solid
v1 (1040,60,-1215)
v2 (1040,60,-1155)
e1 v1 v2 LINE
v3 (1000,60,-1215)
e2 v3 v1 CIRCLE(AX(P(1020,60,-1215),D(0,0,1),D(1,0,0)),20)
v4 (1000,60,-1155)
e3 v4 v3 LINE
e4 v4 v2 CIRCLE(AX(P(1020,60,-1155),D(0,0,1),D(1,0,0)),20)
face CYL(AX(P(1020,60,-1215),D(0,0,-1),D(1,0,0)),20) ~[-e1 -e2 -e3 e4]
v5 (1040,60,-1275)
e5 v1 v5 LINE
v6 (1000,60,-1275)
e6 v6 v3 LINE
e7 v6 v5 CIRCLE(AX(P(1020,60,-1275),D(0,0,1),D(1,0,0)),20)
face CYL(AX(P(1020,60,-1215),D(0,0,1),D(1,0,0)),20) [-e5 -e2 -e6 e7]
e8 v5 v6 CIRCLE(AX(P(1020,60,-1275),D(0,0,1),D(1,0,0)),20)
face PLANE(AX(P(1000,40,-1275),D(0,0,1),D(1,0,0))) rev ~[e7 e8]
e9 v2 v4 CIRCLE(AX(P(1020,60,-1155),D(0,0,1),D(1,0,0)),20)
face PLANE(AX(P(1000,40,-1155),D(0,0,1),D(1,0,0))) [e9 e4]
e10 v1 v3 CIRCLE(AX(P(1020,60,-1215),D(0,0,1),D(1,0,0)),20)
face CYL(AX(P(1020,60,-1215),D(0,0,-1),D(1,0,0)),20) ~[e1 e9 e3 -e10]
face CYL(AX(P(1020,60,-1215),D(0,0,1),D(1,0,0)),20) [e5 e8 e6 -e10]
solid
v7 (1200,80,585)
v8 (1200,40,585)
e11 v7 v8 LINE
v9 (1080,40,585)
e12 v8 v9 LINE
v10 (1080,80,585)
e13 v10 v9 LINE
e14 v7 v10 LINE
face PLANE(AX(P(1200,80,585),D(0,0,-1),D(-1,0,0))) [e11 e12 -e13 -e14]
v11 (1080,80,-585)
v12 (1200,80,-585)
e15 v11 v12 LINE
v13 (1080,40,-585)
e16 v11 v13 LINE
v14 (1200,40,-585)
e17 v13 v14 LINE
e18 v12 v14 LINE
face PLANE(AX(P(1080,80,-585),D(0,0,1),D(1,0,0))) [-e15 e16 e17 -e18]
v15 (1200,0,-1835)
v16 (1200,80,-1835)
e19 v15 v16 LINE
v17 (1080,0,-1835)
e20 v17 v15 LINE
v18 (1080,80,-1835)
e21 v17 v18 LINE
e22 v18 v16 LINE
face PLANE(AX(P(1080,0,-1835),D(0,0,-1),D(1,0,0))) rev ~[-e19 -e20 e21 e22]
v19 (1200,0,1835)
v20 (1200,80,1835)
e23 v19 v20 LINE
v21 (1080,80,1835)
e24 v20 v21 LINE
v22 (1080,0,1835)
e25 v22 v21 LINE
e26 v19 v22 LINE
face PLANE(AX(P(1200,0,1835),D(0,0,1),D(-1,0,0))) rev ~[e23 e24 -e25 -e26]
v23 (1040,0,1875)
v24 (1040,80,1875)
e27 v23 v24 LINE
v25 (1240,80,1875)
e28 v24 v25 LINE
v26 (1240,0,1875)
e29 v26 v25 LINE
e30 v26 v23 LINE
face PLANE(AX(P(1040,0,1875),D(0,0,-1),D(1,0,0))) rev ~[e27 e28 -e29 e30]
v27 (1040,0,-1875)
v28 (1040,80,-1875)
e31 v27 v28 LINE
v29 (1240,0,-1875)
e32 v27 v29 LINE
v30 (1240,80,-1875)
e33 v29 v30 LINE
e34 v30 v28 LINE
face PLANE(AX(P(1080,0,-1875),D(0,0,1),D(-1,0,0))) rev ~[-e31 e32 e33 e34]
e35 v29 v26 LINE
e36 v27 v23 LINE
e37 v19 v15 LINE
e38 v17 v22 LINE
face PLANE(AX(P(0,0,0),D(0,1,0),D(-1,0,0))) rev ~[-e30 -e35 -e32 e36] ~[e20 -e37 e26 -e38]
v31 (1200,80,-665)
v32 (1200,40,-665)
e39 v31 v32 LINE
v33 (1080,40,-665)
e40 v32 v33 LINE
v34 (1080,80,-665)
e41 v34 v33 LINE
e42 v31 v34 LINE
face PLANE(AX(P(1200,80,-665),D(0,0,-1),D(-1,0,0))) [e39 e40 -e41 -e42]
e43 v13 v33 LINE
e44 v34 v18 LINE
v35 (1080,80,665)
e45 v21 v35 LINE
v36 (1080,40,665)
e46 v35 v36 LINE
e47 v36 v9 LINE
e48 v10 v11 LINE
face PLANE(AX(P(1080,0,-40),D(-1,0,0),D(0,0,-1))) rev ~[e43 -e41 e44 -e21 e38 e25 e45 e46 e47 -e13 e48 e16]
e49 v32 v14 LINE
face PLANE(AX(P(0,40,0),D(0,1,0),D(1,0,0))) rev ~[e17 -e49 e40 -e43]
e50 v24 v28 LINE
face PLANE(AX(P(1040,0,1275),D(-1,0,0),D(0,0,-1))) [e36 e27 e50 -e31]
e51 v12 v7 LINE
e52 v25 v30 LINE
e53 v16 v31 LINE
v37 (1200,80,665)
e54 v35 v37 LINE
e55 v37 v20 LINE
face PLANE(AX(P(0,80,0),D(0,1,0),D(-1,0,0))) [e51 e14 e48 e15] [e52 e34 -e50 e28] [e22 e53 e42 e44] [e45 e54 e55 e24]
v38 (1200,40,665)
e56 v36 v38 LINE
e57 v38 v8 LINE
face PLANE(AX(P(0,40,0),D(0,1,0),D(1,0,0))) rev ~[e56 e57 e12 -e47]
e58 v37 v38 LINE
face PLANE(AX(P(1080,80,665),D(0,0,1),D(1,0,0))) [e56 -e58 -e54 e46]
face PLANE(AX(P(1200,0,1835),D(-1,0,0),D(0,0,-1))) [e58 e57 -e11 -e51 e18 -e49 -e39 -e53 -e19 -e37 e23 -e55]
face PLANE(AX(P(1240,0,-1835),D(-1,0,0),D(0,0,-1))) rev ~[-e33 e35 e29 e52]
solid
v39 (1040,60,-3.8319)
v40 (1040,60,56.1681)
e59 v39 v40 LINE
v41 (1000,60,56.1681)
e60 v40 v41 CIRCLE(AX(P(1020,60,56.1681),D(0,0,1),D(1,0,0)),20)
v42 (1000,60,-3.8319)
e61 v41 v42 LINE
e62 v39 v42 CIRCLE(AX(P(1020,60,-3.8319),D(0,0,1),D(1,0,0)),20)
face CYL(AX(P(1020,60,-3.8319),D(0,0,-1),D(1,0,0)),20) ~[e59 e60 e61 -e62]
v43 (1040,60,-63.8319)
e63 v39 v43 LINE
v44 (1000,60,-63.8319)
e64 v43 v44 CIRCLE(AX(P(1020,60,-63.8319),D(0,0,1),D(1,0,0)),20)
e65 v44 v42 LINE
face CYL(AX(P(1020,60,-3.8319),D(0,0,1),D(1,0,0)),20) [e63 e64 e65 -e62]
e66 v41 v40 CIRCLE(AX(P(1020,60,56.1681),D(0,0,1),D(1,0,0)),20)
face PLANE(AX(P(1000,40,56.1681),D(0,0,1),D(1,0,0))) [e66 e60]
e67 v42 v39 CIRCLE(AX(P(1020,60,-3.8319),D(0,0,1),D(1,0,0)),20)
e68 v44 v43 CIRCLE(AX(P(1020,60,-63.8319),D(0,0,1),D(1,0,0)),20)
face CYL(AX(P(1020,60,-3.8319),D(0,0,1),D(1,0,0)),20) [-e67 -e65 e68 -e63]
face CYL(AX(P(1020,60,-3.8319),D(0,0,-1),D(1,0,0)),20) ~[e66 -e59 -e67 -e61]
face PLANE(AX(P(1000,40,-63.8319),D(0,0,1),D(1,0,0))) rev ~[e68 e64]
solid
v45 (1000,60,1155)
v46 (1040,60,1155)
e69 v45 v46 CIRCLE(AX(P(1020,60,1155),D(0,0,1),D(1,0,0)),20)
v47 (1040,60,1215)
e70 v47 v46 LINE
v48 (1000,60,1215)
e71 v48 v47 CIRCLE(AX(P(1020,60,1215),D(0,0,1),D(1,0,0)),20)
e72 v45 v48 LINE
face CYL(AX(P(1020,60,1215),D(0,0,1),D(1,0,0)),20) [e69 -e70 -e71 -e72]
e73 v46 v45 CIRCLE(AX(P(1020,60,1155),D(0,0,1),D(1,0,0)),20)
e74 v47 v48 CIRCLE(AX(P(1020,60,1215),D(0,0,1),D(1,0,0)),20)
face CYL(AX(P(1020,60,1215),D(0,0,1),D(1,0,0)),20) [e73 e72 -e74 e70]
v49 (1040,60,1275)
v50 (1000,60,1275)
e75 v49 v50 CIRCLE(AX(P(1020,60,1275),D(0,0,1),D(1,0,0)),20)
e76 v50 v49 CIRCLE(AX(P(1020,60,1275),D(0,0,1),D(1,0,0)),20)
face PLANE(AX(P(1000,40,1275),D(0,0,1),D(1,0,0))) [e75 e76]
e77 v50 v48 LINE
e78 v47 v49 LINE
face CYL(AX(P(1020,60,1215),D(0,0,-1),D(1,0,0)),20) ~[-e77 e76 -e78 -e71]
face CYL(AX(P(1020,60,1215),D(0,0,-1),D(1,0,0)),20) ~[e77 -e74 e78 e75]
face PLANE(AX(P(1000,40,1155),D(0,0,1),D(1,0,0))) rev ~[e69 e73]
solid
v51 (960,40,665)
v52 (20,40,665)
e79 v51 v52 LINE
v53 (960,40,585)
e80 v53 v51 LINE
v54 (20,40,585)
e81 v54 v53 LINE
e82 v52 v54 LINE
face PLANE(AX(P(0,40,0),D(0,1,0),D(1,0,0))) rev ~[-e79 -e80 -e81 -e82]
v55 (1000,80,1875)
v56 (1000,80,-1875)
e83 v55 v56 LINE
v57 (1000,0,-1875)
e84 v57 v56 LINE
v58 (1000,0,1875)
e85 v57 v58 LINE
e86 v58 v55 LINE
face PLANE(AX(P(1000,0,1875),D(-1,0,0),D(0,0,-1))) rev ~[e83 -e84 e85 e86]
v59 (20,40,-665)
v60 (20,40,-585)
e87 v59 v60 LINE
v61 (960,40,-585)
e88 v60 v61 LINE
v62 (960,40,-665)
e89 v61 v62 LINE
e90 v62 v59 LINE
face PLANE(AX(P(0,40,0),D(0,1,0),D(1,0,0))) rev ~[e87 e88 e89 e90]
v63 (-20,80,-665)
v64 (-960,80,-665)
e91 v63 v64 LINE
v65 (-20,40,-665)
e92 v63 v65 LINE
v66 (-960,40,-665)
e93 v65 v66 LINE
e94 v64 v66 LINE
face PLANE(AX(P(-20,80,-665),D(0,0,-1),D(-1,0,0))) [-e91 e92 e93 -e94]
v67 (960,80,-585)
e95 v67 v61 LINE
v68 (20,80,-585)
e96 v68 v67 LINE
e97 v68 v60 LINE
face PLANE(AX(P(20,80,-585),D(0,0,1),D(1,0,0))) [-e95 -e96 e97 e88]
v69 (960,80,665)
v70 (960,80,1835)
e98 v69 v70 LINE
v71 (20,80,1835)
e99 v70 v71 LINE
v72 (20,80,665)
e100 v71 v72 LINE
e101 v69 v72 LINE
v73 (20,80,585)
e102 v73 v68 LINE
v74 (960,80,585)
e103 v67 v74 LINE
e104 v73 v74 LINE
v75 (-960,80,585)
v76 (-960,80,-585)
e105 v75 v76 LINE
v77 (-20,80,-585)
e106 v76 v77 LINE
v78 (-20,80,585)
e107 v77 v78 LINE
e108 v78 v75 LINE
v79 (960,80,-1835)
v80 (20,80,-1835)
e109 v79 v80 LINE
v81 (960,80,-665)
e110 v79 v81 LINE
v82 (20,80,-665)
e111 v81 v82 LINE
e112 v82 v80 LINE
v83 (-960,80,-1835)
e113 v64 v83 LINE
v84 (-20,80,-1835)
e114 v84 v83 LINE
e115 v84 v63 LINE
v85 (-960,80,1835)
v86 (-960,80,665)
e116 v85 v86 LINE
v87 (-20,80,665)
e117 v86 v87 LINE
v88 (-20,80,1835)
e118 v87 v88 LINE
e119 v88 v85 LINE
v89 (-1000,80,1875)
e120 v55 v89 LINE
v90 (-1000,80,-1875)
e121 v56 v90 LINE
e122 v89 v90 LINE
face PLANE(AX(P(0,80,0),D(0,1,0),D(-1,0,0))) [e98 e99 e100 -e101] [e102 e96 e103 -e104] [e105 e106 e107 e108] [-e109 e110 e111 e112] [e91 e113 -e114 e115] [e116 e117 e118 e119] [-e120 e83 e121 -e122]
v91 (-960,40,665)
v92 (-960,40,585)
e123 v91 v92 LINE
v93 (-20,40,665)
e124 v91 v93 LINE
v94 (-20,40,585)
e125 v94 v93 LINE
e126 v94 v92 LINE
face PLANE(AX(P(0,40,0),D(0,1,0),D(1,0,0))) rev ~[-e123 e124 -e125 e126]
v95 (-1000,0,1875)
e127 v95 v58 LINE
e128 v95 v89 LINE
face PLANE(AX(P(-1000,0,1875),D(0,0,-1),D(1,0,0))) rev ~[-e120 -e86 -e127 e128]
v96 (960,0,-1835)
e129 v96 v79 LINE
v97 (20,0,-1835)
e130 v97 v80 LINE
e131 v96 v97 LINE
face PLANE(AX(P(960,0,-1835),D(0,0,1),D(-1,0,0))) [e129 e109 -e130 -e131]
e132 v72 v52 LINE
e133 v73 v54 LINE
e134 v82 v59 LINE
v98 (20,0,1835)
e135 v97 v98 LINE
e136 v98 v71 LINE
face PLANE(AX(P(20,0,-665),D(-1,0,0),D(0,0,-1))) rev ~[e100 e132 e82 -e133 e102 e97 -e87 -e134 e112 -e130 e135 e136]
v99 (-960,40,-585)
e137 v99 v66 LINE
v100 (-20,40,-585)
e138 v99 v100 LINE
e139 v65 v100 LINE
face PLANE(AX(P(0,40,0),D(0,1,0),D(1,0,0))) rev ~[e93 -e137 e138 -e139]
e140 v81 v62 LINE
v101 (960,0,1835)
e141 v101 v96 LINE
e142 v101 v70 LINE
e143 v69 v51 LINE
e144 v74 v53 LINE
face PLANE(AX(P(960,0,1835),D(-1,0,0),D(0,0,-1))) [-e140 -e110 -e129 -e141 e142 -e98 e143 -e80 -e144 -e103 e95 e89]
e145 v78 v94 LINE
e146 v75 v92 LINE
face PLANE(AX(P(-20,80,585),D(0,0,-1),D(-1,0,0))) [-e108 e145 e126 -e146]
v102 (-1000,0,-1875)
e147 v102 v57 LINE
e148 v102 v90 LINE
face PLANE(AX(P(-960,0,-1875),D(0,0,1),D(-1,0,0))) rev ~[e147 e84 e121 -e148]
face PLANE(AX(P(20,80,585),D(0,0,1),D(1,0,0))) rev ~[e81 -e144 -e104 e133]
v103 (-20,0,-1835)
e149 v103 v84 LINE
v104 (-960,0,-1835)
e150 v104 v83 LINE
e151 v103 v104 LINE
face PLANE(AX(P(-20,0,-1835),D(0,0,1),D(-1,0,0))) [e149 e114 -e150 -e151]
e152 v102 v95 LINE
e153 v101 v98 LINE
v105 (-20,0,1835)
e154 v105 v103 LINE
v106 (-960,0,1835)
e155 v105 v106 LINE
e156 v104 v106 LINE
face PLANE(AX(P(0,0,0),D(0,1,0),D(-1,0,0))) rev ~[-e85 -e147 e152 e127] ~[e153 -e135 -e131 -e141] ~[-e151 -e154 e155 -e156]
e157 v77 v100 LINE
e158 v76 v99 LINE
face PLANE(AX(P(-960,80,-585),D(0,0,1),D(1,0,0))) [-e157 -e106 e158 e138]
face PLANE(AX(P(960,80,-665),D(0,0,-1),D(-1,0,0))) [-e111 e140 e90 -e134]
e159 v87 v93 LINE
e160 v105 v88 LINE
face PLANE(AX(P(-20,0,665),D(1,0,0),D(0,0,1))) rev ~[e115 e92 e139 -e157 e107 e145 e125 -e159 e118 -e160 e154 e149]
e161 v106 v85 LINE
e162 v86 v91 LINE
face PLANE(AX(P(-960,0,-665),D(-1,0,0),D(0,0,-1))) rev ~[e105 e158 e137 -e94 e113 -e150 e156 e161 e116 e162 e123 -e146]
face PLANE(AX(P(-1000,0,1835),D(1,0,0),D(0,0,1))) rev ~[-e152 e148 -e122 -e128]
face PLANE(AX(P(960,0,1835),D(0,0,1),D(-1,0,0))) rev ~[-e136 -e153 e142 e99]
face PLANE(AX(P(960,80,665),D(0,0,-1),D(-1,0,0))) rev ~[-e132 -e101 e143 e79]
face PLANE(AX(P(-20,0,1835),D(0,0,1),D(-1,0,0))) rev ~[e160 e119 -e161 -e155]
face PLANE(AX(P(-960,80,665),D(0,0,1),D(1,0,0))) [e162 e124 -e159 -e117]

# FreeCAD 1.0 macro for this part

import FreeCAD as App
import Part
import Sketcher
from FreeCAD import Vector

doc = App.newDocument("Part")
body = doc.addObject("PartDesign::Body", "Body")
body.AllowCompound = True

# Sketch on XZ plane
sketch1 = body.newObject("Sketcher::SketchObject", "Sketch")
sketch1.AttachmentSupport = (doc.getObject("XZ_Plane"), [""])
sketch1.MapMode = "FlatFace"
sketch1.addGeometry([
    Part.LineSegment(Vector(-1000, 1875, 0), Vector(1000, 1875, 0)),  # 0
    Part.LineSegment(Vector(1000, 1875, 0), Vector(1000, -1875, 0)),  # 1
    Part.LineSegment(Vector(1000, -1875, 0), Vector(-1000, -1875, 0)),  # 2
    Part.LineSegment(Vector(-1000, -1875, 0), Vector(-1000, 1875, 0)),  # 3
    Part.LineSegment(Vector(-20, 1835, 0), Vector(-960, 1835, 0)),  # 4
    Part.LineSegment(Vector(-960, 1835, 0), Vector(-960, -1835, 0)),  # 5
    Part.LineSegment(Vector(-960, -1835, 0), Vector(-20, -1835, 0)),  # 6
    Part.LineSegment(Vector(-20, -1835, 0), Vector(-20, 1835, 0)),  # 7
    Part.LineSegment(Vector(960, 1835, 0), Vector(20, 1835, 0)),  # 8
    Part.LineSegment(Vector(20, 1835, 0), Vector(20, -1835, 0)),  # 9
    Part.LineSegment(Vector(20, -1835, 0), Vector(960, -1835, 0)),  # 10
    Part.LineSegment(Vector(960, -1835, 0), Vector(960, 1835, 0)),  # 11
    Part.LineSegment(Vector(1040, 1875, 0), Vector(1240, 1875, 0)),  # 12
    Part.LineSegment(Vector(1240, 1875, 0), Vector(1240, -1875, 0)),  # 13
    Part.LineSegment(Vector(1240, -1875, 0), Vector(1040, -1875, 0)),  # 14
    Part.LineSegment(Vector(1040, -1875, 0), Vector(1040, 1875, 0)),  # 15
    Part.LineSegment(Vector(1080, -1835, 0), Vector(1200, -1835, 0)),  # 16
    Part.LineSegment(Vector(1200, -1835, 0), Vector(1200, 1835, 0)),  # 17
    Part.LineSegment(Vector(1200, 1835, 0), Vector(1080, 1835, 0)),  # 18
    Part.LineSegment(Vector(1080, 1835, 0), Vector(1080, -1835, 0)),  # 19
], False)
sketch1.addConstraint([
    Sketcher.Constraint("Coincident", 0, 2, 1, 1),
    Sketcher.Constraint("Coincident", 1, 2, 2, 1),
    Sketcher.Constraint("Coincident", 2, 2, 3, 1),
    Sketcher.Constraint("Coincident", 3, 2, 0, 1),
    Sketcher.Constraint("Coincident", 4, 2, 5, 1),
    Sketcher.Constraint("Coincident", 5, 2, 6, 1),
    Sketcher.Constraint("Coincident", 6, 2, 7, 1),
    Sketcher.Constraint("Coincident", 7, 2, 4, 1),
    Sketcher.Constraint("Coincident", 8, 2, 9, 1),
    Sketcher.Constraint("Coincident", 9, 2, 10, 1),
    Sketcher.Constraint("Coincident", 10, 2, 11, 1),
    Sketcher.Constraint("Coincident", 11, 2, 8, 1),
    Sketcher.Constraint("Coincident", 12, 2, 13, 1),
    Sketcher.Constraint("Coincident", 13, 2, 14, 1),
    Sketcher.Constraint("Coincident", 14, 2, 15, 1),
    Sketcher.Constraint("Coincident", 15, 2, 12, 1),
    Sketcher.Constraint("Coincident", 16, 2, 17, 1),
    Sketcher.Constraint("Coincident", 17, 2, 18, 1),
    Sketcher.Constraint("Coincident", 18, 2, 19, 1),
    Sketcher.Constraint("Coincident", 19, 2, 16, 1),
    Sketcher.Constraint("Horizontal", 0),
    Sketcher.Constraint("Vertical", 1),
    Sketcher.Constraint("Horizontal", 2),
    Sketcher.Constraint("Vertical", 3),
    Sketcher.Constraint("Horizontal", 4),
    Sketcher.Constraint("Vertical", 5),
    Sketcher.Constraint("Horizontal", 6),
    Sketcher.Constraint("Vertical", 7),
    Sketcher.Constraint("Horizontal", 8),
    Sketcher.Constraint("Vertical", 9),
    Sketcher.Constraint("Horizontal", 10),
    Sketcher.Constraint("Vertical", 11),
    Sketcher.Constraint("Horizontal", 12),
    Sketcher.Constraint("Vertical", 13),
    Sketcher.Constraint("Horizontal", 14),
    Sketcher.Constraint("Vertical", 15),
    Sketcher.Constraint("Horizontal", 16),
    Sketcher.Constraint("Vertical", 17),
    Sketcher.Constraint("Horizontal", 18),
    Sketcher.Constraint("Vertical", 19),
    Sketcher.Constraint("Symmetric", 0, 2, 2, 2, -1, 1),
    Sketcher.Constraint("Symmetric", 6, 2, 8, 2, -1, 1),
    Sketcher.Constraint("Symmetric", 4, 2, 10, 2, -1, 1),
    Sketcher.Constraint("Horizontal", 7, 2, 8, 2),
    Sketcher.Constraint("Horizontal", 3, 2, 12, 2),
    Sketcher.Constraint("Horizontal", 2, 2, 13, 2),
    Sketcher.Constraint("Horizontal", 10, 2, 16, 2),
    Sketcher.Constraint("Horizontal", 11, 2, 17, 2),
    Sketcher.Constraint("DistanceX", 0, 1, 0, 2, 2000.0),
    Sketcher.Constraint("DistanceX", 12, 1, 12, 2, 200.0),
    Sketcher.Constraint("DistanceX", 16, 1, 16, 2, 120.0),
    Sketcher.Constraint("DistanceY", 1, 2, 1, 1, 3750.0),
    Sketcher.Constraint("DistanceX", 3, 2, 4, 2, 40.0),
    Sketcher.Constraint("DistanceY", 4, 2, 3, 2, 40.0),
    Sketcher.Constraint("DistanceX", 7, 2, 8, 2, 40.0),
    Sketcher.Constraint("DistanceX", 1, 2, 14, 2, 40.0),
    Sketcher.Constraint("DistanceX", 16, 2, 13, 2, 40.0),
])
pad1 = body.newObject("PartDesign::Pad", "Pad")
pad1.Profile = sketch1
pad1.Length = 80
pad1.Reversed = True

# Sketch on XY plane
sketch2 = body.newObject("Sketcher::SketchObject", "Sketch001")
sketch2.AttachmentSupport = (doc.getObject("XY_Plane"), [""])
sketch2.MapMode = "FlatFace"
sketch2.AttachmentOffset = App.Placement(Vector(0, 0, 1215), App.Rotation())
sketch2.addGeometry(Part.Circle(Vector(1020, 60, 0), Vector(0, 0, 1), 20), False)
sketch2.addConstraint([
    Sketcher.Constraint("Diameter", 0, 40.0),
    Sketcher.Constraint("DistanceX", -1, 1, 0, 3, 1020.0),
    Sketcher.Constraint("DistanceY", -1, 1, 0, 3, 60.0),
])
pad2 = body.newObject("PartDesign::Pad", "Pad001")
pad2.Profile = sketch2
pad2.Length = 120
pad2.Midplane = True

# Sketch on XY plane
sketch3 = body.newObject("Sketcher::SketchObject", "Sketch002")
sketch3.AttachmentSupport = (doc.getObject("XY_Plane"), [""])
sketch3.MapMode = "FlatFace"
sketch3.AttachmentOffset = App.Placement(Vector(0, 0, -3.8319), App.Rotation())
sketch3.addGeometry(Part.Circle(Vector(1020, 60, 0), Vector(0, 0, 1), 20), False)
sketch3.addConstraint([
    Sketcher.Constraint("Diameter", 0, 40.0),
    Sketcher.Constraint("DistanceX", -1, 1, 0, 3, 1020.0),
    Sketcher.Constraint("DistanceY", -1, 1, 0, 3, 60.0),
])
pad3 = body.newObject("PartDesign::Pad", "Pad002")
pad3.Profile = sketch3
pad3.Length = 120
pad3.Midplane = True

# Sketch on XY plane
sketch4 = body.newObject("Sketcher::SketchObject", "Sketch003")
sketch4.AttachmentSupport = (doc.getObject("XY_Plane"), [""])
sketch4.MapMode = "FlatFace"
sketch4.AttachmentOffset = App.Placement(Vector(0, 0, -1215), App.Rotation())
sketch4.addGeometry(Part.Circle(Vector(1020, 60, 0), Vector(0, 0, 1), 20), False)
sketch4.addConstraint([
    Sketcher.Constraint("Diameter", 0, 40.0),
    Sketcher.Constraint("DistanceX", -1, 1, 0, 3, 1020.0),
    Sketcher.Constraint("DistanceY", -1, 1, 0, 3, 60.0),
])
pad4 = body.newObject("PartDesign::Pad", "Pad003")
pad4.Profile = sketch4
pad4.Length = 120
pad4.Midplane = True

# Sketch on XZ plane
sketch5 = body.newObject("Sketcher::SketchObject", "Sketch004")
sketch5.AttachmentSupport = (doc.getObject("XZ_Plane"), [""])
sketch5.MapMode = "FlatFace"
sketch5.AttachmentOffset = App.Placement(Vector(0, 0, -80), App.Rotation())
sketch5.addGeometry([
    Part.LineSegment(Vector(-960, 585, 0), Vector(-960, 665, 0)),  # 0
    Part.LineSegment(Vector(-960, 665, 0), Vector(-20, 665, 0)),  # 1
    Part.LineSegment(Vector(-20, 665, 0), Vector(-20, 585, 0)),  # 2
    Part.LineSegment(Vector(-20, 585, 0), Vector(-960, 585, 0)),  # 3
    Part.LineSegment(Vector(-960, -665, 0), Vector(-960, -585, 0)),  # 4
    Part.LineSegment(Vector(-960, -585, 0), Vector(-20, -585, 0)),  # 5
    Part.LineSegment(Vector(-20, -585, 0), Vector(-20, -665, 0)),  # 6
    Part.LineSegment(Vector(-20, -665, 0), Vector(-960, -665, 0)),  # 7
    Part.LineSegment(Vector(1200, 585, 0), Vector(1080, 585, 0)),  # 8
    Part.LineSegment(Vector(1080, 585, 0), Vector(1080, 665, 0)),  # 9
    Part.LineSegment(Vector(1080, 665, 0), Vector(1200, 665, 0)),  # 10
    Part.LineSegment(Vector(1200, 665, 0), Vector(1200, 585, 0)),  # 11
    Part.LineSegment(Vector(1080, -665, 0), Vector(1080, -585, 0)),  # 12
    Part.LineSegment(Vector(1080, -585, 0), Vector(1200, -585, 0)),  # 13
    Part.LineSegment(Vector(1200, -585, 0), Vector(1200, -665, 0)),  # 14
    Part.LineSegment(Vector(1200, -665, 0), Vector(1080, -665, 0)),  # 15
], False)
sketch5.addConstraint([
    Sketcher.Constraint("Coincident", 0, 2, 1, 1),
    Sketcher.Constraint("Coincident", 1, 2, 2, 1),
    Sketcher.Constraint("Coincident", 2, 2, 3, 1),
    Sketcher.Constraint("Coincident", 3, 2, 0, 1),
    Sketcher.Constraint("Coincident", 4, 2, 5, 1),
    Sketcher.Constraint("Coincident", 5, 2, 6, 1),
    Sketcher.Constraint("Coincident", 6, 2, 7, 1),
    Sketcher.Constraint("Coincident", 7, 2, 4, 1),
    Sketcher.Constraint("Coincident", 8, 2, 9, 1),
    Sketcher.Constraint("Coincident", 9, 2, 10, 1),
    Sketcher.Constraint("Coincident", 10, 2, 11, 1),
    Sketcher.Constraint("Coincident", 11, 2, 8, 1),
    Sketcher.Constraint("Coincident", 12, 2, 13, 1),
    Sketcher.Constraint("Coincident", 13, 2, 14, 1),
    Sketcher.Constraint("Coincident", 14, 2, 15, 1),
    Sketcher.Constraint("Coincident", 15, 2, 12, 1),
    Sketcher.Constraint("Vertical", 0),
    Sketcher.Constraint("Horizontal", 1),
    Sketcher.Constraint("Vertical", 2),
    Sketcher.Constraint("Horizontal", 3),
    Sketcher.Constraint("Vertical", 4),
    Sketcher.Constraint("Horizontal", 5),
    Sketcher.Constraint("Vertical", 6),
    Sketcher.Constraint("Horizontal", 7),
    Sketcher.Constraint("Horizontal", 8),
    Sketcher.Constraint("Vertical", 9),
    Sketcher.Constraint("Horizontal", 10),
    Sketcher.Constraint("Vertical", 11),
    Sketcher.Constraint("Vertical", 12),
    Sketcher.Constraint("Horizontal", 13),
    Sketcher.Constraint("Vertical", 14),
    Sketcher.Constraint("Horizontal", 15),
    Sketcher.Constraint("Symmetric", 3, 2, 4, 2, -1),
    Sketcher.Constraint("Symmetric", 1, 2, 6, 2, -1),
    Sketcher.Constraint("Symmetric", 8, 2, 12, 2, -1),
    Sketcher.Constraint("Symmetric", 10, 2, 14, 2, -1),
    Sketcher.Constraint("Horizontal", 3, 2, 8, 2),
    Sketcher.Constraint("Horizontal", 1, 2, 9, 2),
    Sketcher.Constraint("DistanceX", 1, 1, 1, 2, 940.0),
    Sketcher.Constraint("DistanceX", 8, 2, 8, 1, 120.0),
    Sketcher.Constraint("DistanceY", 0, 1, 0, 2, 80.0),
    Sketcher.Constraint("DistanceX", 0, 2, -1, 1, 960.0),
    Sketcher.Constraint("DistanceY", -1, 1, 0, 2, 665.0),
    Sketcher.Constraint("DistanceX", -1, 1, 8, 2, 1080.0),
])
pad5 = body.newObject("PartDesign::Pad", "Pad004")
pad5.Profile = sketch5
pad5.Length = 40

# Sketch on XZ plane
sketch6 = body.newObject("Sketcher::SketchObject", "Sketch005")
sketch6.AttachmentSupport = (doc.getObject("XZ_Plane"), [""])
sketch6.MapMode = "FlatFace"
sketch6.AttachmentOffset = App.Placement(Vector(0, 0, -80), App.Rotation())
sketch6.addGeometry([
    Part.LineSegment(Vector(20, 665, 0), Vector(960, 665, 0)),  # 0
    Part.LineSegment(Vector(960, 665, 0), Vector(960, 585, 0)),  # 1
    Part.LineSegment(Vector(960, 585, 0), Vector(20, 585, 0)),  # 2
    Part.LineSegment(Vector(20, 585, 0), Vector(20, 665, 0)),  # 3
    Part.LineSegment(Vector(20, -665, 0), Vector(20, -585, 0)),  # 4
    Part.LineSegment(Vector(20, -585, 0), Vector(960, -585, 0)),  # 5
    Part.LineSegment(Vector(960, -585, 0), Vector(960, -665, 0)),  # 6
    Part.LineSegment(Vector(960, -665, 0), Vector(20, -665, 0)),  # 7
], False)
sketch6.addConstraint([
    Sketcher.Constraint("Coincident", 0, 2, 1, 1),
    Sketcher.Constraint("Coincident", 1, 2, 2, 1),
    Sketcher.Constraint("Coincident", 2, 2, 3, 1),
    Sketcher.Constraint("Coincident", 3, 2, 0, 1),
    Sketcher.Constraint("Coincident", 4, 2, 5, 1),
    Sketcher.Constraint("Coincident", 5, 2, 6, 1),
    Sketcher.Constraint("Coincident", 6, 2, 7, 1),
    Sketcher.Constraint("Coincident", 7, 2, 4, 1),
    Sketcher.Constraint("Horizontal", 0),
    Sketcher.Constraint("Vertical", 1),
    Sketcher.Constraint("Horizontal", 2),
    Sketcher.Constraint("Vertical", 3),
    Sketcher.Constraint("Vertical", 4),
    Sketcher.Constraint("Horizontal", 5),
    Sketcher.Constraint("Vertical", 6),
    Sketcher.Constraint("Horizontal", 7),
    Sketcher.Constraint("Symmetric", 2, 2, 4, 2, -1),
    Sketcher.Constraint("Symmetric", 0, 2, 6, 2, -1),
    Sketcher.Constraint("DistanceX", 0, 1, 0, 2, 940.0),
    Sketcher.Constraint("DistanceY", 1, 2, 1, 1, 80.0),
    Sketcher.Constraint("DistanceX", -1, 1, 0, 2, 960.0),
    Sketcher.Constraint("DistanceY", -1, 1, 0, 2, 665.0),
])
pad6 = body.newObject("PartDesign::Pad", "Pad005")
pad6.Profile = sketch6
pad6.Length = 40

doc.recompute()
